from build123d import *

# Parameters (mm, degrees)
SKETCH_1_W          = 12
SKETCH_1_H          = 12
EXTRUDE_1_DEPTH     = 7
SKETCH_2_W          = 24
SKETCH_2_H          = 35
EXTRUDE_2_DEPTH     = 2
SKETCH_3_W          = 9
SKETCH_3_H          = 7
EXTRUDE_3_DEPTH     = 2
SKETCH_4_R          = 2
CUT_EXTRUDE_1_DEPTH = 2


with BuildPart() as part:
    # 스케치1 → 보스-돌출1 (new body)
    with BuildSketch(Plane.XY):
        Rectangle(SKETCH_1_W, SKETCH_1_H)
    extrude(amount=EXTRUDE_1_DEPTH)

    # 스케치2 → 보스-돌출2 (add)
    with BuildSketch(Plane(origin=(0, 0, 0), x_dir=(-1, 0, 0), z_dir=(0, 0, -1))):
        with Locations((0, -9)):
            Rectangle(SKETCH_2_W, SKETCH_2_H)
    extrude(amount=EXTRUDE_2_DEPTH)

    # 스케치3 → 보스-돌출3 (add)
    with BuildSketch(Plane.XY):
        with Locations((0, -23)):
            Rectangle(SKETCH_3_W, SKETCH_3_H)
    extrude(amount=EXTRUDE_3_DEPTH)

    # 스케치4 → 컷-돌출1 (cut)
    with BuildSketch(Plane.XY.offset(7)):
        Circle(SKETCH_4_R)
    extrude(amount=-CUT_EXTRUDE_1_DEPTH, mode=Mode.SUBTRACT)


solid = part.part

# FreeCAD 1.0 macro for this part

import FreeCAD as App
import Part
import Sketcher
from FreeCAD import Vector
Q = App.Units.Quantity

doc = App.newDocument("Part")
body = doc.addObject("PartDesign::Body", "Body")

# Sketch on XY plane
sketch1 = doc.addObject("Sketcher::SketchObject", "Sketch")
body.addObject(sketch1)
sketch1.AttachmentSupport = (doc.XY_Plane, [""])
sketch1.MapMode = "FlatFace"
sketch1.addGeometry([
    Part.LineSegment(Vector(-6, 6, 0), Vector(-6, -6, 0)),
    Part.LineSegment(Vector(-6, -6, 0), Vector(6, -6, 0)),
    Part.LineSegment(Vector(6, -6, 0), Vector(6, 6, 0)),
    Part.LineSegment(Vector(6, 6, 0), Vector(-6, 6, 0)),
], False)
sketch1.addConstraint([
    Sketcher.Constraint("Coincident", 0, 2, 1, 1),
    Sketcher.Constraint("Coincident", 1, 2, 2, 1),
    Sketcher.Constraint("Coincident", 2, 2, 3, 1),
    Sketcher.Constraint("Coincident", 3, 2, 0, 1),
    Sketcher.Constraint("Vertical", 0),
    Sketcher.Constraint("Horizontal", 1),
    Sketcher.Constraint("Vertical", 2),
    Sketcher.Constraint("Horizontal", 3),
    Sketcher.Constraint("Symmetric", 0, 2, 2, 2, -1, 1),
    Sketcher.Constraint("Equal", 3, 0),
    Sketcher.Constraint("DistanceX", 1, 1, 1, 2, Q("12 mm")),
])
pad1 = doc.addObject("PartDesign::Pad", "Pad")
body.addObject(pad1)
pad1.Profile = sketch1
pad1.Length = 7

# Sketch on XY plane
sketch2 = doc.addObject("Sketcher::SketchObject", "Sketch001")
body.addObject(sketch2)
sketch2.AttachmentSupport = (doc.XY_Plane, [""])
sketch2.MapMode = "FlatFace"
sketch2.addGeometry([
    Part.LineSegment(Vector(12, 8, 0), Vector(12, -26, 0)),
    Part.LineSegment(Vector(12, -26, 0), Vector(-12, -26, 0)),
    Part.LineSegment(Vector(-12, -26, 0), Vector(-12, 8, 0)),
    Part.LineSegment(Vector(-12, 8, 0), Vector(12, 8, 0)),
], False)
sketch2.addConstraint([
    Sketcher.Constraint("Coincident", 0, 2, 1, 1),
    Sketcher.Constraint("Coincident", 1, 2, 2, 1),
    Sketcher.Constraint("Coincident", 2, 2, 3, 1),
    Sketcher.Constraint("Coincident", 3, 2, 0, 1),
    Sketcher.Constraint("Vertical", 0),
    Sketcher.Constraint("Horizontal", 1),
    Sketcher.Constraint("Vertical", 2),
    Sketcher.Constraint("Horizontal", 3),
    Sketcher.Constraint("DistanceX", 1, 2, 1, 1, Q("24 mm")),
    Sketcher.Constraint("DistanceY", 0, 2, 0, 1, Q("35 mm")),
    Sketcher.Constraint("DistanceX", -1, 1, 0, 2, Q("12 mm")),
    Sketcher.Constraint("DistanceY", 0, 2, -1, 1, Q("26.5 mm")),
])
pad2 = doc.addObject("PartDesign::Pad", "Pad001")
body.addObject(pad2)
pad2.Profile = sketch2
pad2.Length = 2
pad2.Reversed = True

# Sketch on XY plane
sketch3 = doc.addObject("Sketcher::SketchObject", "Sketch002")
body.addObject(sketch3)
sketch3.AttachmentSupport = (doc.XY_Plane, [""])
sketch3.MapMode = "FlatFace"
sketch3.addGeometry([
    Part.LineSegment(Vector(-4, -20, 0), Vector(-4, -26, 0)),
    Part.LineSegment(Vector(-4, -26, 0), Vector(4, -26, 0)),
    Part.LineSegment(Vector(4, -26, 0), Vector(4, -20, 0)),
    Part.LineSegment(Vector(4, -20, 0), Vector(-4, -20, 0)),
], False)
sketch3.addConstraint([
    Sketcher.Constraint("Coincident", 0, 2, 1, 1),
    Sketcher.Constraint("Coincident", 1, 2, 2, 1),
    Sketcher.Constraint("Coincident", 2, 2, 3, 1),
    Sketcher.Constraint("Coincident", 3, 2, 0, 1),
    Sketcher.Constraint("Vertical", 0),
    Sketcher.Constraint("Horizontal", 1),
    Sketcher.Constraint("Vertical", 2),
    Sketcher.Constraint("Horizontal", 3),
    Sketcher.Constraint("DistanceX", 1, 1, 1, 2, Q("9 mm")),
    Sketcher.Constraint("DistanceY", 0, 2, 0, 1, Q("7 mm")),
    Sketcher.Constraint("DistanceX", 0, 2, -1, 1, Q("4.5 mm")),
    Sketcher.Constraint("DistanceY", 0, 2, -1, 1, Q("26.5 mm")),
])
pad3 = doc.addObject("PartDesign::Pad", "Pad002")
body.addObject(pad3)
pad3.Profile = sketch3
pad3.Length = 2

# Sketch on XY plane
sketch4 = doc.addObject("Sketcher::SketchObject", "Sketch003")
body.addObject(sketch4)
sketch4.AttachmentSupport = (doc.XY_Plane, [""])
sketch4.MapMode = "FlatFace"
sketch4.AttachmentOffset = App.Placement(Vector(0, 0, 7), App.Rotation())
sketch4.addGeometry(Part.Circle(Vector(0, 0, 0), Vector(0, 0, 1), 2), False)
sketch4.addConstraint([
    Sketcher.Constraint("Coincident", 0, 3, -1, 1),
    Sketcher.Constraint("Diameter", 0, Q("4 mm")),
])
pocket1 = doc.addObject("PartDesign::Pocket", "Pocket")
body.addObject(pocket1)
pocket1.Profile = sketch4
pocket1.Length = 2

doc.recompute()
